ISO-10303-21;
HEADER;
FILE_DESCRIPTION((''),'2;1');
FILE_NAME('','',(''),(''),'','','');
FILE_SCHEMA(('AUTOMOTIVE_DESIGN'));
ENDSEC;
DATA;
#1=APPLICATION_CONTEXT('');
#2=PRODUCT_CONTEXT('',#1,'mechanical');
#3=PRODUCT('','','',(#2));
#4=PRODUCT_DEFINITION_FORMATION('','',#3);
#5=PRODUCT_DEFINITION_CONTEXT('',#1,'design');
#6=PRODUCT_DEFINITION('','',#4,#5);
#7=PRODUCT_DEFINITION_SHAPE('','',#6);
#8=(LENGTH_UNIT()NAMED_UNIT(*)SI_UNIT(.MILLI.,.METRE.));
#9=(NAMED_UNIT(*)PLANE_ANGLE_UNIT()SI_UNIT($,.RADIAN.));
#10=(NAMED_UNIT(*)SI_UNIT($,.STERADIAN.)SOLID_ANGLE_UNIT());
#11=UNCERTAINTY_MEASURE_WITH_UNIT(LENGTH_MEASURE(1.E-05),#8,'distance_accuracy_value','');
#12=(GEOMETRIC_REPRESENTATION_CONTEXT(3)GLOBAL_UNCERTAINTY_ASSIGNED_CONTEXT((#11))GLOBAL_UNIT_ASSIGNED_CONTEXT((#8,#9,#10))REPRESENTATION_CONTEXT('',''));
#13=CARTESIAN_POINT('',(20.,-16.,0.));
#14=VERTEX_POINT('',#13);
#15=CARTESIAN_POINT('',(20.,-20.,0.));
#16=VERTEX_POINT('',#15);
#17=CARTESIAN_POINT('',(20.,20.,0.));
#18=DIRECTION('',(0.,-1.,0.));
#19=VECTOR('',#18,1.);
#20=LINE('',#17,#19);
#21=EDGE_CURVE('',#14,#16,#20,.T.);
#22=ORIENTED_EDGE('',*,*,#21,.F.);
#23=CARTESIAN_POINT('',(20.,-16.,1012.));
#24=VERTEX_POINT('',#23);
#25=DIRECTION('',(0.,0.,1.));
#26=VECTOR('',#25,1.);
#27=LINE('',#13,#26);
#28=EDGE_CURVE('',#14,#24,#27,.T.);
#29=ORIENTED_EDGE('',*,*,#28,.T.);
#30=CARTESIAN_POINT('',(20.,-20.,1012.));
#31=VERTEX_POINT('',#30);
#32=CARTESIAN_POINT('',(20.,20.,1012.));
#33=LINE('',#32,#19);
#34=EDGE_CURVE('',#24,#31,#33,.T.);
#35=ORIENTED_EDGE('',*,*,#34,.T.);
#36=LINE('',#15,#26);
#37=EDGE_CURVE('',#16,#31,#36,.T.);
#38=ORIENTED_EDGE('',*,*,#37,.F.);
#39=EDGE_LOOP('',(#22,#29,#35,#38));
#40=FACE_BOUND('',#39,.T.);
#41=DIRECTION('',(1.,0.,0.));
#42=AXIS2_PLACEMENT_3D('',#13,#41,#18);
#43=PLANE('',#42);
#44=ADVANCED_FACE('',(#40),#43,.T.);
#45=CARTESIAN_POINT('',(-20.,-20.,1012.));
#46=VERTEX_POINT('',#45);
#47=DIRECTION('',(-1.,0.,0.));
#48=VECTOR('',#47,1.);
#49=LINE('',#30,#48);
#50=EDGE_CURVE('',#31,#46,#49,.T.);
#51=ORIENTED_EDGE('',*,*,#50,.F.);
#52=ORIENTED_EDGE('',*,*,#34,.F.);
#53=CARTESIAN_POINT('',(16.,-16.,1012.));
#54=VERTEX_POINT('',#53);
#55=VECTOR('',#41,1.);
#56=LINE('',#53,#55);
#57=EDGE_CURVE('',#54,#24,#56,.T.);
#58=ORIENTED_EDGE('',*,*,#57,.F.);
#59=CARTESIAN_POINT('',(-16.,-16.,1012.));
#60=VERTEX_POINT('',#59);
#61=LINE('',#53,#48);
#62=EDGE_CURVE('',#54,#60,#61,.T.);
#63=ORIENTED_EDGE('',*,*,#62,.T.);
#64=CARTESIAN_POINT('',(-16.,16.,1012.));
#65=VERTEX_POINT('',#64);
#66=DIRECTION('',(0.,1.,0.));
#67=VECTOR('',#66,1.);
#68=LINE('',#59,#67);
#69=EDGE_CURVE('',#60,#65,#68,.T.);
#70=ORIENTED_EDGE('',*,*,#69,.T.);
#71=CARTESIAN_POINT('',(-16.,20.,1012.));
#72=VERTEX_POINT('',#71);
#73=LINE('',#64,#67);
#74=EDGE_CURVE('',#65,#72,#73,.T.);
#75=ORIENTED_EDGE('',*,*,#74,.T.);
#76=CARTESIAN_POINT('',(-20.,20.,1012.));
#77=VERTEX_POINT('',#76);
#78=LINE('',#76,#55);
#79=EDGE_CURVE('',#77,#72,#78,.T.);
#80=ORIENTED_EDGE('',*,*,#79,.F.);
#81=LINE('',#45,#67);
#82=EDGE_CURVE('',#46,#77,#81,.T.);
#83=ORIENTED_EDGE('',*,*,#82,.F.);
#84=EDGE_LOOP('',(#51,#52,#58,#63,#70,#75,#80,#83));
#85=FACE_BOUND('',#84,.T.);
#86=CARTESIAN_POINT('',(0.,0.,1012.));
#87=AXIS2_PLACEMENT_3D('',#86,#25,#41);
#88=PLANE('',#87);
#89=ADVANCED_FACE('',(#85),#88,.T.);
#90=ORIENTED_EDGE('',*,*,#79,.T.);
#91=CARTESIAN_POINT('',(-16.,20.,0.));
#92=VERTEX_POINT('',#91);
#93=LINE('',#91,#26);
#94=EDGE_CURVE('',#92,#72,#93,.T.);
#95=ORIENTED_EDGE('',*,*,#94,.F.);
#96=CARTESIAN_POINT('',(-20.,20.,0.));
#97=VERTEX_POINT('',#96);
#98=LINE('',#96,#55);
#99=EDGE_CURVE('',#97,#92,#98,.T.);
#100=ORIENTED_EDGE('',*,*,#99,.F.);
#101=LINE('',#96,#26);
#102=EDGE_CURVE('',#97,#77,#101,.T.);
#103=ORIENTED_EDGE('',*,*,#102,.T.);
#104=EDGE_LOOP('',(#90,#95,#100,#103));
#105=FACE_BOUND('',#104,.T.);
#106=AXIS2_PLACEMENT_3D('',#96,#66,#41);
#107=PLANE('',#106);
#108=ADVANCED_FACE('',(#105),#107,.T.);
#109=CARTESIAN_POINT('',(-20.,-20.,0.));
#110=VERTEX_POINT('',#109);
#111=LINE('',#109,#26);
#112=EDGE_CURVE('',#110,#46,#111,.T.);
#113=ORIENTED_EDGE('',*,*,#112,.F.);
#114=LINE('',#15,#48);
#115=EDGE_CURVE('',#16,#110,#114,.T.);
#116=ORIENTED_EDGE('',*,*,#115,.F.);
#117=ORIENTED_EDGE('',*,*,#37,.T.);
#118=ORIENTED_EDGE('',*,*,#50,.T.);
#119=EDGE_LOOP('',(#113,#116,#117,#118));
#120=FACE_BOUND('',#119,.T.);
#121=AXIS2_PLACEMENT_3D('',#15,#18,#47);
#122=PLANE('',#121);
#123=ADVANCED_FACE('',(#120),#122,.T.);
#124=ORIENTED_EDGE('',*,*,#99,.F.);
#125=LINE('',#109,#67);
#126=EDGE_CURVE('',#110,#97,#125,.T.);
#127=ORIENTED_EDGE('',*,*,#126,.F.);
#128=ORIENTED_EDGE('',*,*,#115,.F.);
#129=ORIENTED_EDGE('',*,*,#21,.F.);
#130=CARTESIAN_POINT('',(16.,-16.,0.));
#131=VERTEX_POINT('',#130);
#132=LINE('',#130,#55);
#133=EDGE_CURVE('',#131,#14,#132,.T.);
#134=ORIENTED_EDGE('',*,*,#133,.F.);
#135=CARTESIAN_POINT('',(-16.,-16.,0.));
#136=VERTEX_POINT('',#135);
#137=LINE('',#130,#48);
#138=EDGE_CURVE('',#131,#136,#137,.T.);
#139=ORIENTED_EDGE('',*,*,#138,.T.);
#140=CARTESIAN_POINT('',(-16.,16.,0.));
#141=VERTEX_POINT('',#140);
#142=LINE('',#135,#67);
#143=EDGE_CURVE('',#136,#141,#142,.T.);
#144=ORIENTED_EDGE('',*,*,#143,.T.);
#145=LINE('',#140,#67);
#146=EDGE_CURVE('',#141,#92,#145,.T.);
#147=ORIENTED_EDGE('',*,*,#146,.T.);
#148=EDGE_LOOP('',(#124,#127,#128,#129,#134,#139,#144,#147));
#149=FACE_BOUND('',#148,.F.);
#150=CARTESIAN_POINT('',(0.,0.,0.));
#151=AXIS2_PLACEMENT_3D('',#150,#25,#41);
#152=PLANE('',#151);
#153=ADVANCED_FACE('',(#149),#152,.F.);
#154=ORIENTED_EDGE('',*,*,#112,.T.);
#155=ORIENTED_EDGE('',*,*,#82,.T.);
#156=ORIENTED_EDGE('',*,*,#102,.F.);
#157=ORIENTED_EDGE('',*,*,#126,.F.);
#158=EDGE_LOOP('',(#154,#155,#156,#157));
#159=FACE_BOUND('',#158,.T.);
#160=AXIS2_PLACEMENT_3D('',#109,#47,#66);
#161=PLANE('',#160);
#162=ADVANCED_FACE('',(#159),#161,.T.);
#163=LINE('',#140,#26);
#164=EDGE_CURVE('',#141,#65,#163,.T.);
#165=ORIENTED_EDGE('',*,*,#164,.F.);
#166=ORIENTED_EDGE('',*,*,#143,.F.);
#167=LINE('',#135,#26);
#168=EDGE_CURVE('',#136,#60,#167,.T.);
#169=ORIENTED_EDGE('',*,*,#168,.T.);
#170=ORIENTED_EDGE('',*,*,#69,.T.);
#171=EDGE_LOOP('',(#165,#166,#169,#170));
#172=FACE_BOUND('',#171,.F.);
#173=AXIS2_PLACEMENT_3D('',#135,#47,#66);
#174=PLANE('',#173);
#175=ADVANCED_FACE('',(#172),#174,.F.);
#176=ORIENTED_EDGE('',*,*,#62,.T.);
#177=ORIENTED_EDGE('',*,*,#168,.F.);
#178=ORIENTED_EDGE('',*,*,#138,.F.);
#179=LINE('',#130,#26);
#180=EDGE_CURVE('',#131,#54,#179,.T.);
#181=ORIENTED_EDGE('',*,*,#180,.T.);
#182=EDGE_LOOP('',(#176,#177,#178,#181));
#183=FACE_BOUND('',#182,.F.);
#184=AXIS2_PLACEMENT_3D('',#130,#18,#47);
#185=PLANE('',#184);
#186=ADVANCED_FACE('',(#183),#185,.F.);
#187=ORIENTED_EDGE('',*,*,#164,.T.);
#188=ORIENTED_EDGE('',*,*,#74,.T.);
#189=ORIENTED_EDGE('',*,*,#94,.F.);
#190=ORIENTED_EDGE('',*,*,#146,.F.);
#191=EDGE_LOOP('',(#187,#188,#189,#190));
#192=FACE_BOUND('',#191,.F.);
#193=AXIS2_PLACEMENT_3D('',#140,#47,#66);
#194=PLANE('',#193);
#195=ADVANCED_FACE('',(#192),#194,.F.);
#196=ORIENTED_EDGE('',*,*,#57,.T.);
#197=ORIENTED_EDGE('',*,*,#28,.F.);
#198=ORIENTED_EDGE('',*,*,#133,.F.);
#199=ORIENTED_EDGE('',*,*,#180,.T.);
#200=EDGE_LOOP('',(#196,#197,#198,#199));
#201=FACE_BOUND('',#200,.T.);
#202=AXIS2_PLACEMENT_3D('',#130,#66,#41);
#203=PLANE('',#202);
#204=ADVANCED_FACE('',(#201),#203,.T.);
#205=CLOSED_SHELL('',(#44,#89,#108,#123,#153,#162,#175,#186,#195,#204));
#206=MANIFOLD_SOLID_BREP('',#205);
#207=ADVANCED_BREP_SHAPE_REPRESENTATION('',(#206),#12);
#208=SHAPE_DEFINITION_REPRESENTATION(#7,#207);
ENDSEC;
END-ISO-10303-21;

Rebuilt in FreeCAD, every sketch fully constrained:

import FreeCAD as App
import Part
import Sketcher

doc = App.newDocument("Part")
body = doc.addObject("PartDesign::Body", "Body")

sketch1 = body.newObject("Sketcher::SketchObject", "Sketch")
sketch1.AttachmentSupport = (doc.getObject("XY_Plane"), [""])
sketch1.MapMode = "FlatFace"
sketch1.addGeometry([
    Part.LineSegment(App.Vector(-16, 20, 0), App.Vector(-20, 20, 0)),
    Part.LineSegment(App.Vector(-20, 20, 0), App.Vector(-20, -20, 0)),
    Part.LineSegment(App.Vector(-20, -20, 0), App.Vector(20, -20, 0)),
    Part.LineSegment(App.Vector(20, -20, 0), App.Vector(20, -16, 0)),
    Part.LineSegment(App.Vector(20, -16, 0), App.Vector(-16, -16, 0)),
    Part.LineSegment(App.Vector(-16, -16, 0), App.Vector(-16, 20, 0)),
], False)
sketch1.addConstraint([
    Sketcher.Constraint("Coincident", 0, 2, 1, 1),
    Sketcher.Constraint("Coincident", 1, 2, 2, 1),
    Sketcher.Constraint("Coincident", 2, 2, 3, 1),
    Sketcher.Constraint("Coincident", 3, 2, 4, 1),
    Sketcher.Constraint("Coincident", 4, 2, 5, 1),
    Sketcher.Constraint("Coincident", 5, 2, 0, 1),
    Sketcher.Constraint("Horizontal", 0),
    Sketcher.Constraint("Vertical", 1),
    Sketcher.Constraint("Horizontal", 2),
    Sketcher.Constraint("Vertical", 3),
    Sketcher.Constraint("Horizontal", 4),
    Sketcher.Constraint("Vertical", 5),
    Sketcher.Constraint("Symmetric", 0, 2, 2, 2, -1, 1),
    Sketcher.Constraint("Equal", 2, 1),
    Sketcher.Constraint("Equal", 0, 3),
    Sketcher.Constraint("DistanceX", 0, 2, 0, 1, 4.0),
    Sketcher.Constraint("DistanceX", 2, 1, 2, 2, 40.0),
])
pad1 = body.newObject("PartDesign::Pad", "Pad")
pad1.Profile = sketch1
pad1.Length = 1012

doc.recompute()
